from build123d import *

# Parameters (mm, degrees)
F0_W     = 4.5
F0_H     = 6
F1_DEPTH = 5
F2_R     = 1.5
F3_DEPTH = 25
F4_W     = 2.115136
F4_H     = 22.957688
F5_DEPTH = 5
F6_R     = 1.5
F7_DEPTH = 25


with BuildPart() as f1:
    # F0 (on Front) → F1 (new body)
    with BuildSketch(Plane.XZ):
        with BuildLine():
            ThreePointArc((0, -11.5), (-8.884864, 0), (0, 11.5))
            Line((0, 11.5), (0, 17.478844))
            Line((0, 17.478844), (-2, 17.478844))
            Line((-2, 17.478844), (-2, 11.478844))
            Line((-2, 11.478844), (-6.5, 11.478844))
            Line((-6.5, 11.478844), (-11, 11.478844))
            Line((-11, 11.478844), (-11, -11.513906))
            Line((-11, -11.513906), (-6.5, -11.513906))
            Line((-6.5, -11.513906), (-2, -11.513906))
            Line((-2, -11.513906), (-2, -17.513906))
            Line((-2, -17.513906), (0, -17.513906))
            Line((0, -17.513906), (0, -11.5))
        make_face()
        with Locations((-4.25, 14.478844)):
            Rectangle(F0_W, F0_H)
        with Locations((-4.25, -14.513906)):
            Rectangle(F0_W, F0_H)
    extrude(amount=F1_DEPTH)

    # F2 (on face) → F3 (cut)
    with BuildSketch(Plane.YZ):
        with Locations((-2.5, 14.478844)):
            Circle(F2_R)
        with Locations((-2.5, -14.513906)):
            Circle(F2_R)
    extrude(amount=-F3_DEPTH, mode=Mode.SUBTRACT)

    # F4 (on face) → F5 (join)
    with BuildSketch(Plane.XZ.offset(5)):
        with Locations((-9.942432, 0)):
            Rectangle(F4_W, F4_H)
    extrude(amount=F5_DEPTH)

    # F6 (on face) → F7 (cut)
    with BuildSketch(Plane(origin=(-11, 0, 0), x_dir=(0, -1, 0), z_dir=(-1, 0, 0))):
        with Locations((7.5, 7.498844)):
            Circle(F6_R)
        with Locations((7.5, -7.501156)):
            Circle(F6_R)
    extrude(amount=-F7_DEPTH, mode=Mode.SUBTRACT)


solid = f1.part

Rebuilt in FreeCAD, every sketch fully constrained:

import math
import FreeCAD as App
import Part
import Sketcher

doc = App.newDocument("Part")
body = doc.addObject("PartDesign::Body", "Body")

# Sketch on XZ plane
sketch1 = body.newObject("Sketcher::SketchObject", "Sketch")
sketch1.AttachmentSupport = (doc.getObject("XZ_Plane"), [""])
sketch1.MapMode = "FlatFace"
sketch1.addGeometry(Part.ArcOfCircle(Part.Circle(App.Vector(3, 0, 0), App.Vector(0, 0, 1), 11.9), math.radians(105), math.radians(255)), False)
sketch1.addGeometry(Part.LineSegment(App.Vector(0, 11.5, 0), App.Vector(0, 17.5, 0)), False)
sketch1.addGeometry(Part.LineSegment(App.Vector(0, 17.5, 0), App.Vector(-6.5, 17.5, 0)), False)
sketch1.addGeometry(Part.LineSegment(App.Vector(-6.5, 17.5, 0), App.Vector(-6.5, 11.5, 0)), False)
sketch1.addGeometry(Part.LineSegment(App.Vector(-6.5, 11.5, 0), App.Vector(-11, 11.5, 0)), False)
sketch1.addGeometry(Part.LineSegment(App.Vector(-11, 11.5, 0), App.Vector(-11, -11.5, 0)), False)
sketch1.addGeometry(Part.LineSegment(App.Vector(-11, -11.5, 0), App.Vector(-6.5, -11.5, 0)), False)
sketch1.addGeometry(Part.LineSegment(App.Vector(-6.5, -11.5, 0), App.Vector(-6.5, -17.5, 0)), False)
sketch1.addGeometry(Part.LineSegment(App.Vector(-6.5, -17.5, 0), App.Vector(0, -17.5, 0)), False)
sketch1.addGeometry(Part.LineSegment(App.Vector(0, -17.5, 0), App.Vector(0, -11.5, 0)), False)
sketch1.addConstraint(Sketcher.Constraint("Coincident", 0, 1, 1, 1))
sketch1.addConstraint(Sketcher.Constraint("Coincident", 1, 2, 2, 1))
sketch1.addConstraint(Sketcher.Constraint("Coincident", 2, 2, 3, 1))
sketch1.addConstraint(Sketcher.Constraint("Coincident", 3, 2, 4, 1))
sketch1.addConstraint(Sketcher.Constraint("Coincident", 4, 2, 5, 1))
sketch1.addConstraint(Sketcher.Constraint("Coincident", 5, 2, 6, 1))
sketch1.addConstraint(Sketcher.Constraint("Coincident", 6, 2, 7, 1))
sketch1.addConstraint(Sketcher.Constraint("Coincident", 7, 2, 8, 1))
sketch1.addConstraint(Sketcher.Constraint("Coincident", 8, 2, 9, 1))
sketch1.addConstraint(Sketcher.Constraint("Coincident", 9, 2, 0, 2))
sketch1.addConstraint(Sketcher.Constraint("Vertical", 1))
sketch1.addConstraint(Sketcher.Constraint("Horizontal", 2))
sketch1.addConstraint(Sketcher.Constraint("Vertical", 3))
sketch1.addConstraint(Sketcher.Constraint("Horizontal", 4))
sketch1.addConstraint(Sketcher.Constraint("Vertical", 5))
sketch1.addConstraint(Sketcher.Constraint("Horizontal", 6))
sketch1.addConstraint(Sketcher.Constraint("Vertical", 7))
sketch1.addConstraint(Sketcher.Constraint("Horizontal", 8))
sketch1.addConstraint(Sketcher.Constraint("Vertical", 9))
sketch1.addConstraint(Sketcher.Constraint("Symmetric", 0, 1, 9, 2, -1, 1))
sketch1.addConstraint(Sketcher.Constraint("PointOnObject", 0, 3, -1))
sketch1.addConstraint(Sketcher.Constraint("Vertical", 3, 2, 6, 2))
sketch1.addConstraint(Sketcher.Constraint("Equal", 3, 7))
sketch1.addConstraint(Sketcher.Constraint("DistanceY", 3, 2, 3, 1, 6.0))
sketch1.addConstraint(Sketcher.Constraint("DistanceX", 2, 2, 2, 1, 6.5))
sketch1.addConstraint(Sketcher.Constraint("DistanceX", 4, 2, 4, 1, 4.5))
sketch1.addConstraint(Sketcher.Constraint("DistanceX", -1, 1, 0, 3, 3.0))
sketch1.addConstraint(Sketcher.Constraint("DistanceY", -1, 1, 0, 1, 11.5))
sketch1.addConstraint(Sketcher.Constraint("DistanceY", 5, 2, 5, 1, 22.99275))
sketch1.addConstraint(Sketcher.Constraint("DistanceY", 1, 1, 1, 2, 5.978844))
pad1 = body.newObject("PartDesign::Pad", "Pad")
pad1.Profile = sketch1
pad1.Length = 5

# Sketch on YZ plane
sketch2 = body.newObject("Sketcher::SketchObject", "Sketch001")
sketch2.AttachmentSupport = (doc.getObject("YZ_Plane"), [""])
sketch2.MapMode = "FlatFace"
sketch2.addGeometry(Part.Circle(App.Vector(-2.5, 14.5, 0), App.Vector(0, 0, 1), 1.5), False)
sketch2.addGeometry(Part.Circle(App.Vector(-2.5, -14.5, 0), App.Vector(0, 0, 1), 1.5), False)
sketch2.addConstraint(Sketcher.Constraint("Equal", 0, 1))
sketch2.addConstraint(Sketcher.Constraint("Vertical", 0, 3, 1, 3))
sketch2.addConstraint(Sketcher.Constraint("Diameter", 0, 3.0))
sketch2.addConstraint(Sketcher.Constraint("DistanceX", 0, 3, -1, 1, 2.5))
sketch2.addConstraint(Sketcher.Constraint("DistanceY", 1, 3, 0, 3, 28.99275))
sketch2.addConstraint(Sketcher.Constraint("DistanceY", -1, 1, 0, 3, 14.478844))
pocket1 = body.newObject("PartDesign::Pocket", "Pocket")
pocket1.Profile = sketch2
pocket1.Length = 25

# Sketch on XZ plane
sketch3 = body.newObject("Sketcher::SketchObject", "Sketch002")
sketch3.AttachmentSupport = (doc.getObject("XZ_Plane"), [""])
sketch3.MapMode = "FlatFace"
sketch3.AttachmentOffset = App.Placement(App.Vector(0, 0, 5), App.Rotation())
sketch3.addGeometry(Part.LineSegment(App.Vector(-11, 11.5, 0), App.Vector(-11, -11.5, 0)), False)
sketch3.addGeometry(Part.LineSegment(App.Vector(-11, -11.5, 0), App.Vector(-8.9, -11.5, 0)), False)
sketch3.addGeometry(Part.LineSegment(App.Vector(-8.9, -11.5, 0), App.Vector(-8.9, 11.5, 0)), False)
sketch3.addGeometry(Part.LineSegment(App.Vector(-8.9, 11.5, 0), App.Vector(-11, 11.5, 0)), False)
sketch3.addConstraint(Sketcher.Constraint("Coincident", 0, 2, 1, 1))
sketch3.addConstraint(Sketcher.Constraint("Coincident", 1, 2, 2, 1))
sketch3.addConstraint(Sketcher.Constraint("Coincident", 2, 2, 3, 1))
sketch3.addConstraint(Sketcher.Constraint("Coincident", 3, 2, 0, 1))
sketch3.addConstraint(Sketcher.Constraint("Vertical", 0))
sketch3.addConstraint(Sketcher.Constraint("Horizontal", 1))
sketch3.addConstraint(Sketcher.Constraint("Vertical", 2))
sketch3.addConstraint(Sketcher.Constraint("Horizontal", 3))
sketch3.addConstraint(Sketcher.Constraint("DistanceX", 0, 2, -1, 1, 11.0))
sketch3.addConstraint(Sketcher.Constraint("DistanceY", 0, 2, 0, 1, 22.957688))
sketch3.addConstraint(Sketcher.Constraint("DistanceX", 1, 1, 1, 2, 2.115136))
sketch3.addConstraint(Sketcher.Constraint("DistanceY", 0, 2, -1, 1, 11.478844))
pad2 = body.newObject("PartDesign::Pad", "Pad001")
pad2.Profile = sketch3
pad2.Length = 5

# Sketch on YZ plane
sketch4 = body.newObject("Sketcher::SketchObject", "Sketch003")
sketch4.AttachmentSupport = (doc.getObject("YZ_Plane"), [""])
sketch4.MapMode = "FlatFace"
sketch4.AttachmentOffset = App.Placement(App.Vector(0, 0, -11), App.Rotation())
sketch4.addGeometry(Part.Circle(App.Vector(-7.5, 7.5, 0), App.Vector(0, 0, 1), 1.5), False)
sketch4.addGeometry(Part.Circle(App.Vector(-7.5, -7.5, 0), App.Vector(0, 0, 1), 1.5), False)
sketch4.addConstraint(Sketcher.Constraint("Equal", 0, 1))
sketch4.addConstraint(Sketcher.Constraint("Vertical", 0, 3, 1, 3))
sketch4.addConstraint(Sketcher.Constraint("Diameter", 0, 3.0))
sketch4.addConstraint(Sketcher.Constraint("DistanceY", 1, 3, 0, 3, 15.0))
sketch4.addConstraint(Sketcher.Constraint("DistanceX", 0, 3, -1, 1, 7.5))
sketch4.addConstraint(Sketcher.Constraint("DistanceY", -1, 1, 0, 3, 7.498844))
pocket2 = body.newObject("PartDesign::Pocket", "Pocket001")
pocket2.Profile = sketch4
pocket2.Length = 25
pocket2.Reversed = True

doc.recompute()
